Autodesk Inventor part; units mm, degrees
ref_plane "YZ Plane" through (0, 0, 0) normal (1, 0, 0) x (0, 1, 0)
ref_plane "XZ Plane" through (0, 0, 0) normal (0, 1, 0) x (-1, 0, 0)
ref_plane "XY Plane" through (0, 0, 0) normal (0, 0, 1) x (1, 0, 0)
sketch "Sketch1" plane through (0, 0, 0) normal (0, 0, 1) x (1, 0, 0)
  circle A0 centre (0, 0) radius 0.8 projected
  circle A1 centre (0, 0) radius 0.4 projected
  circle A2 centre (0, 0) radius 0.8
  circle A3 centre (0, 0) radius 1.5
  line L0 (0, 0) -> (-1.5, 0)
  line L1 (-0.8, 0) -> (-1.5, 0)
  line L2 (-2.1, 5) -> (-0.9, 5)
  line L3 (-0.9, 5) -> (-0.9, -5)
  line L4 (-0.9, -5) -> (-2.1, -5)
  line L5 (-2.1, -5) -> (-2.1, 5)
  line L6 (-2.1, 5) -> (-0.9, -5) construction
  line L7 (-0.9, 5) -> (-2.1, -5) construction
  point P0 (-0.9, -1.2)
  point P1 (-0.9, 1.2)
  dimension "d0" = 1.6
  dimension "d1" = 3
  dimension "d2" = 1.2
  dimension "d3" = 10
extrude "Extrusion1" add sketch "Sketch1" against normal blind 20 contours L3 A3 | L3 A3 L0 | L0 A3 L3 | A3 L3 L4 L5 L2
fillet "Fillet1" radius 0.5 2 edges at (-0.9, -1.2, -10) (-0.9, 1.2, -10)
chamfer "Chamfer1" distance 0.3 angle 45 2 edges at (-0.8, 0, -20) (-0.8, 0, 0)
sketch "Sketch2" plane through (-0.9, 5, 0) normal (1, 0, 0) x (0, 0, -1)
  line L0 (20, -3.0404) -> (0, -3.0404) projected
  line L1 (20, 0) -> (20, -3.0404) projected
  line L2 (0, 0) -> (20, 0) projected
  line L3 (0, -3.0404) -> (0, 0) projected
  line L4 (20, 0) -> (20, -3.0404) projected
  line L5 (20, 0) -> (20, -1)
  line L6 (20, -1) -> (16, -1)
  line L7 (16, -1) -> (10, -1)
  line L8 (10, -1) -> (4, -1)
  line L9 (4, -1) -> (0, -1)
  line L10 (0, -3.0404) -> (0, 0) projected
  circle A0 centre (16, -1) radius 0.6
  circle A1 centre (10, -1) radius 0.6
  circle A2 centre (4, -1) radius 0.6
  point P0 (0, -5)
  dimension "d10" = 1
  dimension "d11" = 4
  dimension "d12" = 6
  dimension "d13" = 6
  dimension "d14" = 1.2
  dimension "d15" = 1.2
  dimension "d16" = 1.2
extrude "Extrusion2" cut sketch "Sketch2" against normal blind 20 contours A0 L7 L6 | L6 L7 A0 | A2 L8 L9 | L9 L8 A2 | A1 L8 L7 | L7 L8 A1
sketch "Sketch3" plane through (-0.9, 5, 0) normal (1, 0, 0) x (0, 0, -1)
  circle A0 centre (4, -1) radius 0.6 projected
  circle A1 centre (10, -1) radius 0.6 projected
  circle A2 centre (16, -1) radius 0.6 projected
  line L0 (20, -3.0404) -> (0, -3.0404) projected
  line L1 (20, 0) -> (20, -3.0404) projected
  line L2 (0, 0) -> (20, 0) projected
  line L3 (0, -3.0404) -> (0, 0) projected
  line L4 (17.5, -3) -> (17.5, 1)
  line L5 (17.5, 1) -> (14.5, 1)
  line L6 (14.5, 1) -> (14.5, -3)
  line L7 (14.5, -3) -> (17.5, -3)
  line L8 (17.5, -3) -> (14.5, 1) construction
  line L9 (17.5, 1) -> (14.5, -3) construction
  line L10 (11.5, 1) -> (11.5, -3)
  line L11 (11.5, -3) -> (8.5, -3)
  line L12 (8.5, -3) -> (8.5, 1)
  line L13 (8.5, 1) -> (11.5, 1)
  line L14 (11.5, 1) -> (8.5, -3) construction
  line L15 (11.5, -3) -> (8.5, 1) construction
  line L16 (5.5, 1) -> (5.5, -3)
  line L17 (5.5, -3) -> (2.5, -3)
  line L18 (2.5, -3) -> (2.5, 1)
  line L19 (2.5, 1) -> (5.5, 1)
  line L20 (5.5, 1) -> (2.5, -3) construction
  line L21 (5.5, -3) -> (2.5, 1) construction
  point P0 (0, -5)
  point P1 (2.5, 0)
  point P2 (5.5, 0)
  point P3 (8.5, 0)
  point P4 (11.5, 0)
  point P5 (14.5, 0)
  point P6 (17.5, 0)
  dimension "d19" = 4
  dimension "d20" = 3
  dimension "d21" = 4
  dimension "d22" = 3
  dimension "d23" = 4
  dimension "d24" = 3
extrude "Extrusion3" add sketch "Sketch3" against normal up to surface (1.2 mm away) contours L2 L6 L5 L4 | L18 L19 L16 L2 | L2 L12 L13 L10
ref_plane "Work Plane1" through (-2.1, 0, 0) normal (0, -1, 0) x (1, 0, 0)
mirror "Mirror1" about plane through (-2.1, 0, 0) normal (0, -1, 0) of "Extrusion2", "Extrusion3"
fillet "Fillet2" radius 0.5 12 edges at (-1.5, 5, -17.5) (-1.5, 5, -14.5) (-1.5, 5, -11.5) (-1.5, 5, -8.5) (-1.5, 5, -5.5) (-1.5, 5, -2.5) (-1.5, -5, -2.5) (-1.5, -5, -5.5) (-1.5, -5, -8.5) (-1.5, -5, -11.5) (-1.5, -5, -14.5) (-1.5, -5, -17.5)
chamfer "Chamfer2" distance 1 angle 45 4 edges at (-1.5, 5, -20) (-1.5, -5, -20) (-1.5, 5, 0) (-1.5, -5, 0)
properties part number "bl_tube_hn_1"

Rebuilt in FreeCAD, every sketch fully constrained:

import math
import FreeCAD as App
import Part
import Sketcher

V = App.Vector
Q = App.Units.Quantity


def edges_at(feature, points):
    """Names of the edges that pass closest to the given points."""
    edges = feature.Shape.Edges
    near = lambda p: min(range(len(edges)), key=lambda i: edges[i].distToShape(Part.Vertex(*p))[0])
    return sorted({f"Edge{near(p) + 1}" for p in points})


def add_polygon(sketch, points):
    """Adds a closed chain of lines whose ends are joined by coincident constraints."""
    first, n = sketch.GeometryCount, len(points)
    for a, b in zip(points, points[1:] + points[:1]):
        sketch.addGeometry(Part.LineSegment(App.Vector(*a, 0), App.Vector(*b, 0)), False)
    for i in range(n):
        sketch.addConstraint(Sketcher.Constraint("Coincident", first + i, 2, first + (i + 1) % n, 1))

doc = App.newDocument("Part")
body = doc.addObject("PartDesign::Body", "Body")

sketch1 = body.newObject("Sketcher::SketchObject", "Sketch")
sketch1.AttachmentSupport = (doc.getObject("XY_Plane"), [""])
sketch1.MapMode = "FlatFace"
sketch1.addGeometry([
    Part.LineSegment(V(-0.9, 1.2, 0), V(-0.9, 5, 0)),
    Part.LineSegment(V(-0.9, 5, 0), V(-2.1, 5, 0)),
    Part.LineSegment(V(-2.1, 5, 0), V(-2.1, -5, 0)),
    Part.LineSegment(V(-2.1, -5, 0), V(-0.9, -5, 0)),
    Part.LineSegment(V(-0.9, -5, 0), V(-0.9, -1.2, 0)),
    Part.ArcOfCircle(Part.Circle(V(0, 0, 0), V(0, 0, 1), 1.5), math.radians(-127), math.radians(127)),
    Part.Circle(V(0, 0, 0), V(0, 0, 1), 0.8),
], False)
sketch1.addConstraint([
    Sketcher.Constraint("Coincident", 0, 2, 1, 1),
    Sketcher.Constraint("Coincident", 1, 2, 2, 1),
    Sketcher.Constraint("Coincident", 2, 2, 3, 1),
    Sketcher.Constraint("Coincident", 3, 2, 4, 1),
    Sketcher.Constraint("Coincident", 4, 2, 5, 1),
    Sketcher.Constraint("Coincident", 5, 2, 0, 1),
    Sketcher.Constraint("Vertical", 0),
    Sketcher.Constraint("Horizontal", 1),
    Sketcher.Constraint("Vertical", 2),
    Sketcher.Constraint("Horizontal", 3),
    Sketcher.Constraint("Vertical", 4),
    Sketcher.Constraint("Coincident", 5, 3, -1, 1),
    Sketcher.Constraint("Coincident", 6, 3, -1, 1),
    Sketcher.Constraint("Symmetric", 0, 2, 3, 2, -1),
    Sketcher.Constraint("Diameter", 6, Q("1.6 mm")),
    Sketcher.Constraint("Radius", 5, Q("1.5 mm")),
    Sketcher.Constraint("DistanceY", 2, 2, 2, 1, Q("10 mm")),
    Sketcher.Constraint("DistanceX", 1, 2, 1, 1, Q("1.2 mm")),
    Sketcher.Constraint("DistanceY", 4, 2, -1, 1, Q("1.2 mm")),
])
pad1 = body.newObject("PartDesign::Pad", "Pad")
pad1.Profile = sketch1
pad1.Length = 20
pad1.Reversed = True
doc.recompute()

fillet = body.newObject("PartDesign::Fillet", "Fillet")
fillet.Base = (pad1, edges_at(pad1, [(-0.9, -1.2, -10), (-0.9, 1.2, -10)]))
fillet.Radius = 0.5
doc.recompute()

chamfer = body.newObject("PartDesign::Chamfer", "Chamfer")
chamfer.Base = (fillet, edges_at(fillet, [(-0.8, 0, -20), (-0.8, 0, 0)]))
chamfer.Size = 0.3

sketch2 = body.newObject("Sketcher::SketchObject", "Sketch001")
sketch2.AttachmentSupport = (doc.getObject("YZ_Plane"), [""])
sketch2.MapMode = "FlatFace"
sketch2.AttachmentOffset = App.Placement(V(0, 0, -0.9), App.Rotation())
sketch2.addGeometry([
    Part.Circle(V(4, -16, 0), V(0, 0, 1), 0.6),
    Part.Circle(V(4, -4, 0), V(0, 0, 1), 0.6),
    Part.Circle(V(4, -10, 0), V(0, 0, 1), 0.6),
], False)
sketch2.addConstraint([
    Sketcher.Constraint("Equal", 0, 1),
    Sketcher.Constraint("Equal", 1, 2),
    Sketcher.Constraint("Vertical", 0, 3, 1, 3),
    Sketcher.Constraint("Vertical", 1, 3, 2, 3),
    Sketcher.Constraint("Diameter", 0, Q("1.2 mm")),
    Sketcher.Constraint("DistanceX", -1, 1, 0, 3, Q("4 mm")),
    Sketcher.Constraint("DistanceY", 1, 3, -1, 1, Q("4 mm")),
    Sketcher.Constraint("DistanceY", 0, 3, 2, 3, Q("6 mm")),
    Sketcher.Constraint("DistanceY", 2, 3, 1, 3, Q("6 mm")),
])
pocket1 = body.newObject("PartDesign::Pocket", "Pocket")
pocket1.Profile = sketch2
pocket1.Length = 20

sketch3 = body.newObject("Sketcher::SketchObject", "Sketch002")
sketch3.AttachmentSupport = (doc.getObject("YZ_Plane"), [""])
sketch3.MapMode = "FlatFace"
sketch3.AttachmentOffset = App.Placement(V(0, 0, -0.9), App.Rotation())
add_polygon(sketch3, [(5, -14.5), (5, -17.5), (6, -17.5), (6, -14.5)])
add_polygon(sketch3, [(6, -2.5), (5, -2.5), (5, -5.5), (6, -5.5)])
add_polygon(sketch3, [(5, -8.5), (5, -11.5), (6, -11.5), (6, -8.5)])
sketch3.addConstraint([
    Sketcher.Constraint("Vertical", 0),
    Sketcher.Constraint("Horizontal", 1),
    Sketcher.Constraint("Vertical", 2),
    Sketcher.Constraint("Horizontal", 3),
    Sketcher.Constraint("Horizontal", 4),
    Sketcher.Constraint("Vertical", 5),
    Sketcher.Constraint("Horizontal", 6),
    Sketcher.Constraint("Vertical", 7),
    Sketcher.Constraint("Vertical", 8),
    Sketcher.Constraint("Horizontal", 9),
    Sketcher.Constraint("Vertical", 10),
    Sketcher.Constraint("Horizontal", 11),
    Sketcher.Constraint("Vertical", 3, 2, 4, 2),
    Sketcher.Constraint("Vertical", 2, 2, 6, 2),
    Sketcher.Constraint("Vertical", 5, 2, 8, 2),
    Sketcher.Constraint("Vertical", 7, 2, 9, 2),
    Sketcher.Constraint("Equal", 2, 5),
    Sketcher.Constraint("Equal", 7, 8),
    Sketcher.Constraint("DistanceY", 0, 2, 0, 1, Q("3 mm")),
    Sketcher.Constraint("DistanceY", 3, 2, 8, 2, Q("3 mm")),
    Sketcher.Constraint("DistanceY", 10, 2, 6, 2, Q("3 mm")),
    Sketcher.Constraint("DistanceX", 1, 1, 1, 2, Q("1 mm")),
    Sketcher.Constraint("DistanceX", -1, 1, 0, 2, Q("5 mm")),
    Sketcher.Constraint("DistanceY", 0, 2, -1, 1, Q("17.5 mm")),
])
pad2 = body.newObject("PartDesign::Pad", "Pad001")
pad2.Profile = sketch3
pad2.Length = 1.2
pad2.Reversed = True
doc.recompute()

mirrored = body.newObject("PartDesign::Mirrored", "Mirrored")
mirrored.Originals = [pocket1, pad2]
mirrored.MirrorPlane = (doc.getObject("XZ_Plane"), [""])
body.Tip = mirrored
doc.recompute()

fillet2 = body.newObject("PartDesign::Fillet", "Fillet001")
fillet2.Base = (mirrored, edges_at(mirrored, [
    (-1.5, 5, -17.5),
    (-1.5, 5, -14.5),
    (-1.5, 5, -11.5),
    (-1.5, 5, -8.5),
    (-1.5, 5, -5.5),
    (-1.5, 5, -2.5),
    (-1.5, -5, -2.5),
    (-1.5, -5, -5.5),
    (-1.5, -5, -8.5),
    (-1.5, -5, -11.5),
    (-1.5, -5, -14.5),
    (-1.5, -5, -17.5),
]))
fillet2.Radius = 0.5
doc.recompute()

chamfer2 = body.newObject("PartDesign::Chamfer", "Chamfer001")
chamfer2.Base = (fillet2, edges_at(fillet2, [
    (-1.5, 5, -20),
    (-1.5, -5, -20),
    (-1.5, 5, 0),
    (-1.5, -5, 0),
]))
chamfer2.Size = 1

doc.recompute()
